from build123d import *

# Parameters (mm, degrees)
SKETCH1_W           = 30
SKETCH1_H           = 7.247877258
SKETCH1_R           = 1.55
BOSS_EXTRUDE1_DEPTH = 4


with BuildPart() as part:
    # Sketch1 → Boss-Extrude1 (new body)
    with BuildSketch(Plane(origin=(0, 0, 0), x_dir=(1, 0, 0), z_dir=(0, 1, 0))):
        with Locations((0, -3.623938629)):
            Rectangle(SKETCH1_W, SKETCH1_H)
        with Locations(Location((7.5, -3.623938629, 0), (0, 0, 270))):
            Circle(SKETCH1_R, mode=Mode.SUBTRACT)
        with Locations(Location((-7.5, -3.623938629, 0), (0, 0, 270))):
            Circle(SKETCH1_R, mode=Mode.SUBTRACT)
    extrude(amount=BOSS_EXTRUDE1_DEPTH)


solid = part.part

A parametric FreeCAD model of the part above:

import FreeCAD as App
import Part
import Sketcher
from FreeCAD import Vector
Q = App.Units.Quantity


def add_polygon(sketch, points):
    """Adds a closed chain of lines whose ends are joined by coincident constraints."""
    first, n = sketch.GeometryCount, len(points)
    for a, b in zip(points, points[1:] + points[:1]):
        sketch.addGeometry(Part.LineSegment(App.Vector(*a, 0), App.Vector(*b, 0)), False)
    for i in range(n):
        sketch.addConstraint(Sketcher.Constraint("Coincident", first + i, 2, first + (i + 1) % n, 1))

doc = App.newDocument("Part")
params = doc.addObject("Spreadsheet::Sheet", "Params")
for row, (alias, value) in enumerate([
    ("sketch1_diameter", "3.1 mm"),
    ("sketch1_width", "30 mm"),
    ("pad1_length", "4 mm"),
], start=1):
    params.set(f"A{row}", alias)
    params.set(f"B{row}", "=" + value)
    params.setAlias(f"B{row}", alias)

body = doc.addObject("PartDesign::Body", "Body")

sketch1 = body.newObject("Sketcher::SketchObject", "Sketch")
sketch1.AttachmentSupport = (doc.getObject("XZ_Plane"), [""])
sketch1.MapMode = "FlatFace"
add_polygon(sketch1, [(-15, 0), (-15, 7.2), (15, 7.2), (15, 0)])
sketch1.addGeometry(Part.Circle(Vector(-7.5, 3.6, 0), Vector(0, 0, 1), 1.6), False)
sketch1.addGeometry(Part.Circle(Vector(7.5, 3.6, 0), Vector(0, 0, 1), 1.6), False)
sketch1.addConstraint([
    Sketcher.Constraint("Vertical", 0),
    Sketcher.Constraint("Horizontal", 1),
    Sketcher.Constraint("Vertical", 2),
    Sketcher.Constraint("Horizontal", 3),
    Sketcher.Constraint("Equal", 4, 5),
    Sketcher.Constraint("Symmetric", 2, 2, 3, 2, -1, 1),
    Sketcher.Constraint("Symmetric", 4, 3, 5, 3, -2),
    Sketcher.Constraint("Diameter", 4, Q("3.1 mm")),
    Sketcher.Constraint("DistanceX", 1, 1, 1, 2, Q("30 mm")),
    Sketcher.Constraint("DistanceX", 4, 3, 5, 3, Q("15 mm")),
    Sketcher.Constraint("DistanceY", 0, 1, 0, 2, Q("7.247877 mm")),
    Sketcher.Constraint("DistanceY", -1, 1, 4, 3, Q("3.623939 mm")),
])
sketch1.setExpression("Constraints[11]", "Params.sketch1_diameter")
sketch1.setExpression("Constraints[12]", "Params.sketch1_width")
pad1 = body.newObject("PartDesign::Pad", "Pad")
pad1.Profile = sketch1
pad1.setExpression("Length", "Params.pad1_length")
pad1.Reversed = True

doc.recompute()
